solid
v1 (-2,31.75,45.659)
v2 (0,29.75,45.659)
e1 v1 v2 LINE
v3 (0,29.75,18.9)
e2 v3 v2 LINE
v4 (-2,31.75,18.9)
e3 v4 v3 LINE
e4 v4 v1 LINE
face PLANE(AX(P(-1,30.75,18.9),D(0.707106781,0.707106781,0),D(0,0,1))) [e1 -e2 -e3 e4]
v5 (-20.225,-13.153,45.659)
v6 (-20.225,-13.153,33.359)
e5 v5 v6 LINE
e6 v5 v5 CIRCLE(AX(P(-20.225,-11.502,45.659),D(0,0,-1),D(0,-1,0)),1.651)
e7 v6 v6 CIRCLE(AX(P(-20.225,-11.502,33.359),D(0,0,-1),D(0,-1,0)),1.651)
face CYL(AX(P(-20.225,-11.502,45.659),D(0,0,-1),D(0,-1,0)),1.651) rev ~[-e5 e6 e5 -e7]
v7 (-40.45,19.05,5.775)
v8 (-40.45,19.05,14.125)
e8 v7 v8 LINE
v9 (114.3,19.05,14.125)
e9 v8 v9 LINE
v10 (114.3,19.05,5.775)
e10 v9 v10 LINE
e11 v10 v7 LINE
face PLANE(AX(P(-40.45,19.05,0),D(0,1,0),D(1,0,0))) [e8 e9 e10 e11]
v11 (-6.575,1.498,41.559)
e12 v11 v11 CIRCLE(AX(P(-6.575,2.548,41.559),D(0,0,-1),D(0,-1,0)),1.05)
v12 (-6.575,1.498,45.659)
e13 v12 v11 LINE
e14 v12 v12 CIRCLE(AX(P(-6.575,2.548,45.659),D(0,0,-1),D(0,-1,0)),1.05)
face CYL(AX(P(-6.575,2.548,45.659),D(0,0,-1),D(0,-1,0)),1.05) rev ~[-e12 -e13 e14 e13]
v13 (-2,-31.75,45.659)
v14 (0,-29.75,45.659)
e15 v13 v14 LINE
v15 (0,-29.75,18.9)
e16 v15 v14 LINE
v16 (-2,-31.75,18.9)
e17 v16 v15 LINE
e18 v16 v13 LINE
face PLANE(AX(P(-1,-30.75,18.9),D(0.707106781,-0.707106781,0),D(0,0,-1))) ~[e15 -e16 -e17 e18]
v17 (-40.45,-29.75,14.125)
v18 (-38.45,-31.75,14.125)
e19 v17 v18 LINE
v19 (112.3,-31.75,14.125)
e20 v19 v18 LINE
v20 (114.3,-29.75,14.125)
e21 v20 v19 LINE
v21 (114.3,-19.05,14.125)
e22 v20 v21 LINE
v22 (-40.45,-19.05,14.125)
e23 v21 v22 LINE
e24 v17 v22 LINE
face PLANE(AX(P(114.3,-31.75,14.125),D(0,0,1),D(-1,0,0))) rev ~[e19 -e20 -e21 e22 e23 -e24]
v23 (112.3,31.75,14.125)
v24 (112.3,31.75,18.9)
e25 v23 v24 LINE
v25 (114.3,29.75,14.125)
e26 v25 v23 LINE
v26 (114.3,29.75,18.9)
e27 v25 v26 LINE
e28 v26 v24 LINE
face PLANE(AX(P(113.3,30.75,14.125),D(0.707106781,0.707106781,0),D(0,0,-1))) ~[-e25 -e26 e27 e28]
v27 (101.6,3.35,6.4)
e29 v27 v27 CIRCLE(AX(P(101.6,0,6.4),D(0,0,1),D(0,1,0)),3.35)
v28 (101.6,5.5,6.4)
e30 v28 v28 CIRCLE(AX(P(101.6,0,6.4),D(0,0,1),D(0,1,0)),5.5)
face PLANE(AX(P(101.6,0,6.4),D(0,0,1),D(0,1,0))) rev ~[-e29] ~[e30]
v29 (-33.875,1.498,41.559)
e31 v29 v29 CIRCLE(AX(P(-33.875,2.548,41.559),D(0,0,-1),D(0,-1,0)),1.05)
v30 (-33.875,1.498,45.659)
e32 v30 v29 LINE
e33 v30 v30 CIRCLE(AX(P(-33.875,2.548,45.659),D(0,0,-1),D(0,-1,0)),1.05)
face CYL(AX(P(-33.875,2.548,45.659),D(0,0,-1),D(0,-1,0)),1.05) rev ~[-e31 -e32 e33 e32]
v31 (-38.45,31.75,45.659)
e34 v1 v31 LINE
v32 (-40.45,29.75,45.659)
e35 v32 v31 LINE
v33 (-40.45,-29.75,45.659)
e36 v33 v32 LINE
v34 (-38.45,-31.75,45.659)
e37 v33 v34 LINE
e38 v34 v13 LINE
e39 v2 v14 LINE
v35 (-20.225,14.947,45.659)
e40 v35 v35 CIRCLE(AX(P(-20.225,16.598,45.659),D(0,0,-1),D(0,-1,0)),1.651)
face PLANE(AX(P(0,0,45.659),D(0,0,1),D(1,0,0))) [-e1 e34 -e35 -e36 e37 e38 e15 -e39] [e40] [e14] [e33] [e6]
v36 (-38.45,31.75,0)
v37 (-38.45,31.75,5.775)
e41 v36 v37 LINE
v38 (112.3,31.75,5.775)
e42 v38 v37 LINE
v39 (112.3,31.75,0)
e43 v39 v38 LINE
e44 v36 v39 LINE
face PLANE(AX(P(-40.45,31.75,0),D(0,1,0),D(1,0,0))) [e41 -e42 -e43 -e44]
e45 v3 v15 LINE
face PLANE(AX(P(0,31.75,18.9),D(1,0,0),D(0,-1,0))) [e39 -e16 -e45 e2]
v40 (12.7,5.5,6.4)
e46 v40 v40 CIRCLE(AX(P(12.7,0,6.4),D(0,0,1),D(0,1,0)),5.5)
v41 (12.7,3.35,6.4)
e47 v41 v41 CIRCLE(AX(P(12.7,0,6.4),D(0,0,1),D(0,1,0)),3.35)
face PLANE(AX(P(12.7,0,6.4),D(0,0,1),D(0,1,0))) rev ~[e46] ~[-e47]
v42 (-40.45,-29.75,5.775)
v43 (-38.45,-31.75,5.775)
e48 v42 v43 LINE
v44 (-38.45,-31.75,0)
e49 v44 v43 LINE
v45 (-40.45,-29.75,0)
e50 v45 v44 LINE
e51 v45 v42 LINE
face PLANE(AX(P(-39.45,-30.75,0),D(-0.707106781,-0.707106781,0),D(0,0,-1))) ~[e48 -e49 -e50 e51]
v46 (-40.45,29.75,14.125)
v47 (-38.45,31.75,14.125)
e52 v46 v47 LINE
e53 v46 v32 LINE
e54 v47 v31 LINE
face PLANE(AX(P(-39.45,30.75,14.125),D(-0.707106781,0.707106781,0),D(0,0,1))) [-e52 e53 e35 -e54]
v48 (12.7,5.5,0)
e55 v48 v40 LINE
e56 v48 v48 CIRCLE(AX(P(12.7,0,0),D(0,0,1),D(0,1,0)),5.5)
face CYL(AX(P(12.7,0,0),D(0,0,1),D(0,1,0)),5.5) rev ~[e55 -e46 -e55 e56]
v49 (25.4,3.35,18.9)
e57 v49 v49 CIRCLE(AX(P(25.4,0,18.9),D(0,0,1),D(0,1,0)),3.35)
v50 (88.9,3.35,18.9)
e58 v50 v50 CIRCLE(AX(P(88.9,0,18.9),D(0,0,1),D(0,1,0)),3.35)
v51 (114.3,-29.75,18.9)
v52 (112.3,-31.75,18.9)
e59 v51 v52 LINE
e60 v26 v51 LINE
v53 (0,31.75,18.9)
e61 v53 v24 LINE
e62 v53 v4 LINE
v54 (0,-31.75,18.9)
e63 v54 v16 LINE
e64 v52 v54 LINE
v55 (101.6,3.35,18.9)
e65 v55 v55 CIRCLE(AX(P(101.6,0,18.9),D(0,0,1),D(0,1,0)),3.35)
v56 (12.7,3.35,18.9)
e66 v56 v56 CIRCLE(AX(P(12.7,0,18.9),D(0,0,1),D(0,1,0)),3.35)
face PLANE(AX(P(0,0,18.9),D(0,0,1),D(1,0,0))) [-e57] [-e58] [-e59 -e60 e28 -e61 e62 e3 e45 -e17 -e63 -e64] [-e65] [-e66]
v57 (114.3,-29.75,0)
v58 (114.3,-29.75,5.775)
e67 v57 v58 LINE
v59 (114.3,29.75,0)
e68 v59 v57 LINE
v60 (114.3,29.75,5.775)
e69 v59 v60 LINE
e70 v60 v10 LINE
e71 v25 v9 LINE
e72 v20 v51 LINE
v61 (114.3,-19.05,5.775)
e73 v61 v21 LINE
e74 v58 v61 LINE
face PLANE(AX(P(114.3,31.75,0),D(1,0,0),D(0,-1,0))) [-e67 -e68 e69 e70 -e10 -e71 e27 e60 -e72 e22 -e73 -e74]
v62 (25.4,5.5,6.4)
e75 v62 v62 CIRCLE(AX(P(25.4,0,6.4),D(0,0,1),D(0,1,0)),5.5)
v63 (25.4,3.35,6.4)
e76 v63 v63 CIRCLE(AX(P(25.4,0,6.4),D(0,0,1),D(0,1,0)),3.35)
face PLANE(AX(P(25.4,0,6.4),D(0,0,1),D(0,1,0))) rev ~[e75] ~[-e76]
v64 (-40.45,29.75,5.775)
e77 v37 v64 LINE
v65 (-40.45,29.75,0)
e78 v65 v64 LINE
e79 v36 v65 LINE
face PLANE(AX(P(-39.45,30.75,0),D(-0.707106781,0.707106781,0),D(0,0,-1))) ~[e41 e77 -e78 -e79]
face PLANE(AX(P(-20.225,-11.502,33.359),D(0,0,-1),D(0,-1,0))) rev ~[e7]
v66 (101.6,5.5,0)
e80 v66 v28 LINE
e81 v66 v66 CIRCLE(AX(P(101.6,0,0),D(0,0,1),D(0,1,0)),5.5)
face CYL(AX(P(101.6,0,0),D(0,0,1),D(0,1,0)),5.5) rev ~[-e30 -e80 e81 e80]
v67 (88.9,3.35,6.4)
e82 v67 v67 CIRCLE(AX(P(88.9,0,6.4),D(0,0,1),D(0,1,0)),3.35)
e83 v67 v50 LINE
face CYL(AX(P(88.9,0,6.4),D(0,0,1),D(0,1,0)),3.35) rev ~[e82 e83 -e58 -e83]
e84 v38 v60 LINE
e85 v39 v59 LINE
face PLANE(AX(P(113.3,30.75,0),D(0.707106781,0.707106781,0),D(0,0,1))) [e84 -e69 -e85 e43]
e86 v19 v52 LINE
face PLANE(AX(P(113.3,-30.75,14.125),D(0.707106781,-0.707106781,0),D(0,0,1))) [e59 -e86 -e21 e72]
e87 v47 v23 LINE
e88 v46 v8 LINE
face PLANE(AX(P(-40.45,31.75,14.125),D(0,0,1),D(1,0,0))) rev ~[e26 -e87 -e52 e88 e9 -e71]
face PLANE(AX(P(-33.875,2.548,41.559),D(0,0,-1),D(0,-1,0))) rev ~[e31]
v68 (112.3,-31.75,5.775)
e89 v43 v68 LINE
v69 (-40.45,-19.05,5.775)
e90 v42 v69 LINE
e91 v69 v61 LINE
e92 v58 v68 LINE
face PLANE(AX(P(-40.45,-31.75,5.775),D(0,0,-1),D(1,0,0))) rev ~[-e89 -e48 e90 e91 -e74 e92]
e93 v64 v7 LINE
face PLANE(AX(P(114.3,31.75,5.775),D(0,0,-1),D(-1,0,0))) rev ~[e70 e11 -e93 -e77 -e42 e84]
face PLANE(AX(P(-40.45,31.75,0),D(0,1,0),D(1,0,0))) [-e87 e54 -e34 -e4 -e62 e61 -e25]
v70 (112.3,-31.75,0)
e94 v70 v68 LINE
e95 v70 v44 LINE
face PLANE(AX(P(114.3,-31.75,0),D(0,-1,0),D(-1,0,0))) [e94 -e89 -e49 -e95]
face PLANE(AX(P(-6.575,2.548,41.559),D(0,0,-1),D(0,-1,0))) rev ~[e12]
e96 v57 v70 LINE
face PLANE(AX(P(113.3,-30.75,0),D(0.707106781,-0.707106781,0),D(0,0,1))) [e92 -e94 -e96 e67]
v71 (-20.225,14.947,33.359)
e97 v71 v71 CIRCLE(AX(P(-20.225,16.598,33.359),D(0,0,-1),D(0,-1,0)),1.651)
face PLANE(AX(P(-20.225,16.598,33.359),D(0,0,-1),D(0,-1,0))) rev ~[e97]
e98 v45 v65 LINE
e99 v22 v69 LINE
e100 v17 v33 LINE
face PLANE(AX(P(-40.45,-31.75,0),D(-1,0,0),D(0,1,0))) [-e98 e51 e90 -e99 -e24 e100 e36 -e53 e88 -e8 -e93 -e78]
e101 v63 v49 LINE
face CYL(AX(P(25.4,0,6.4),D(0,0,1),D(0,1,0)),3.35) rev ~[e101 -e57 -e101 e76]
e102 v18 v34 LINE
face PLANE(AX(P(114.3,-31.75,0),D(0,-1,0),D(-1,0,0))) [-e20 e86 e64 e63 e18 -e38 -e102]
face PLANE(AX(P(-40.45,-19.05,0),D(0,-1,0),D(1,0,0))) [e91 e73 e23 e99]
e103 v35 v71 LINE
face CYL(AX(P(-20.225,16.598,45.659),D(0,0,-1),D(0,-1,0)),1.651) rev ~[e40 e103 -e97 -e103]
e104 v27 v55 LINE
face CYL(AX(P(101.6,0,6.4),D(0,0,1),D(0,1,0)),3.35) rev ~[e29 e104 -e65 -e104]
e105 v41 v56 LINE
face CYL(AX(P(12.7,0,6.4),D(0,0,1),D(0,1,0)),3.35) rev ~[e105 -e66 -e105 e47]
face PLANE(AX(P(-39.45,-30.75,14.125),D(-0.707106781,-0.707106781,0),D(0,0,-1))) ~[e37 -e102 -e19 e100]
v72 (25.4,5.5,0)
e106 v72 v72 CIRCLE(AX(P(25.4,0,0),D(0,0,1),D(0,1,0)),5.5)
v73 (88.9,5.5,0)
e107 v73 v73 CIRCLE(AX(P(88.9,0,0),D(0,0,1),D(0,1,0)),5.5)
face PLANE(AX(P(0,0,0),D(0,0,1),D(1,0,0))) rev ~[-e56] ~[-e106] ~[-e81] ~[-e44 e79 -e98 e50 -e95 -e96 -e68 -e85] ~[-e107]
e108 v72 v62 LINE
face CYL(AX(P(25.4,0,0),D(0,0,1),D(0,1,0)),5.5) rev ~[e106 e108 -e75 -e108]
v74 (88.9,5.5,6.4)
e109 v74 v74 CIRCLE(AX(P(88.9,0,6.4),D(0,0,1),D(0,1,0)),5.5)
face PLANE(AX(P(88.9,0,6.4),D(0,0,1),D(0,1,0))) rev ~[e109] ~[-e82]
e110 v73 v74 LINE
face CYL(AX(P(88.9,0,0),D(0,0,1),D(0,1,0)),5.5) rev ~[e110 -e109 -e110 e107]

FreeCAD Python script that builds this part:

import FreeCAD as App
import Part
import Sketcher

V = App.Vector
Q = App.Units.Quantity


def edges_at(feature, points):
    """Names of the edges that pass closest to the given points."""
    edges = feature.Shape.Edges
    near = lambda p: min(range(len(edges)), key=lambda i: edges[i].distToShape(Part.Vertex(*p))[0])
    return sorted({f"Edge{near(p) + 1}" for p in points})


def add_polygon(sketch, points):
    """Adds a closed chain of lines whose ends are joined by coincident constraints."""
    first, n = sketch.GeometryCount, len(points)
    for a, b in zip(points, points[1:] + points[:1]):
        sketch.addGeometry(Part.LineSegment(App.Vector(*a, 0), App.Vector(*b, 0)), False)
    for i in range(n):
        sketch.addConstraint(Sketcher.Constraint("Coincident", first + i, 2, first + (i + 1) % n, 1))

doc = App.newDocument("Part")
body = doc.addObject("PartDesign::Body", "Body")

sketch1 = body.newObject("Sketcher::SketchObject", "Sketch")
sketch1.AttachmentSupport = (doc.getObject("XY_Plane"), [""])
sketch1.MapMode = "FlatFace"
add_polygon(sketch1, [(114.3, 31.75), (-40.45, 31.75), (-40.45, -31.75), (114.3, -31.75)])
sketch1.addConstraint(Sketcher.Constraint("Horizontal", 0))
sketch1.addConstraint(Sketcher.Constraint("Vertical", 1))
sketch1.addConstraint(Sketcher.Constraint("Horizontal", 2))
sketch1.addConstraint(Sketcher.Constraint("Vertical", 3))
sketch1.addConstraint(Sketcher.Constraint("DistanceY", 1, 2, 1, 1, Q("63.5 mm")))
sketch1.addConstraint(Sketcher.Constraint("DistanceX", 0, 2, 0, 1, Q("154.75 mm")))
sketch1.addConstraint(Sketcher.Constraint("DistanceX", 0, 2, -1, 1, Q("40.45 mm")))
sketch1.addConstraint(Sketcher.Constraint("DistanceY", -1, 1, 0, 2, Q("31.75 mm")))
pad1 = body.newObject("PartDesign::Pad", "Pad")
pad1.Profile = sketch1
pad1.Length = 18.9

sketch2 = body.newObject("Sketcher::SketchObject", "Sketch001")
sketch2.AttachmentSupport = (doc.getObject("XY_Plane"), [""])
sketch2.MapMode = "FlatFace"
sketch2.AttachmentOffset = App.Placement(V(0, 0, 18.9), App.Rotation())
add_polygon(sketch2, [(0, -31.75), (0, 31.75), (-40.45, 31.75), (-40.45, -31.75)])
sketch2.addConstraint(Sketcher.Constraint("Vertical", 0))
sketch2.addConstraint(Sketcher.Constraint("Horizontal", 1))
sketch2.addConstraint(Sketcher.Constraint("Vertical", 2))
sketch2.addConstraint(Sketcher.Constraint("Horizontal", 3))
sketch2.addConstraint(Sketcher.Constraint("Symmetric", 0, 2, 3, 2, -1, 1))
sketch2.addConstraint(Sketcher.Constraint("DistanceX", 1, 2, 1, 1, Q("40.45 mm")))
sketch2.addConstraint(Sketcher.Constraint("DistanceY", 0, 1, 0, 2, Q("63.5 mm")))
pad2 = body.newObject("PartDesign::Pad", "Pad001")
pad2.Profile = sketch2
pad2.Length = 26.759

sketch3 = body.newObject("Sketcher::SketchObject", "Sketch002")
sketch3.AttachmentSupport = (doc.getObject("XY_Plane"), [""])
sketch3.MapMode = "FlatFace"
sketch3.addGeometry(Part.Circle(V(12.7, 0, 0), V(0, 0, 1), 3.35), False)
sketch3.addGeometry(Part.Circle(V(101.6, 0, 0), V(0, 0, 1), 3.35), False)
sketch3.addGeometry(Part.Circle(V(25.4, 0, 0), V(0, 0, 1), 3.35), False)
sketch3.addGeometry(Part.Circle(V(88.9, 0, 0), V(0, 0, 1), 3.35), False)
sketch3.addConstraint(Sketcher.Constraint("Equal", 0, 1))
sketch3.addConstraint(Sketcher.Constraint("Equal", 1, 2))
sketch3.addConstraint(Sketcher.Constraint("Equal", 2, 3))
sketch3.addConstraint(Sketcher.Constraint("PointOnObject", 0, 3, -1))
sketch3.addConstraint(Sketcher.Constraint("PointOnObject", 1, 3, -1))
sketch3.addConstraint(Sketcher.Constraint("PointOnObject", 2, 3, -1))
sketch3.addConstraint(Sketcher.Constraint("PointOnObject", 3, 3, -1))
sketch3.addConstraint(Sketcher.Constraint("Diameter", 0, Q("6.7 mm")))
sketch3.addConstraint(Sketcher.Constraint("DistanceX", -1, 1, 0, 3, Q("12.7 mm")))
sketch3.addConstraint(Sketcher.Constraint("DistanceX", -1, 1, 1, 3, Q("101.6 mm")))
sketch3.addConstraint(Sketcher.Constraint("DistanceX", -1, 1, 2, 3, Q("25.4 mm")))
sketch3.addConstraint(Sketcher.Constraint("DistanceX", -1, 1, 3, 3, Q("88.9 mm")))
doc.recompute()
hole = body.newObject("PartDesign::Hole", "Hole")
hole.Profile = sketch3
hole.ThreadType = "None"
hole.Diameter = 6.7
hole.DepthType = "ThroughAll"
hole.HoleCutType = "Counterbore"
hole.HoleCutDiameter = 11
hole.HoleCutDepth = 6.4
hole.Reversed = True

sketch4 = body.newObject("Sketcher::SketchObject", "Sketch003")
sketch4.AttachmentSupport = (doc.getObject("XZ_Plane"), [""])
sketch4.MapMode = "FlatFace"
sketch4.AttachmentOffset = App.Placement(V(0, 0, -31.75), App.Rotation())
add_polygon(sketch4, [(114.3, 14.125), (114.3, 5.775), (-40.45, 5.775), (-40.45, 14.125)])
sketch4.addConstraint(Sketcher.Constraint("Vertical", 0))
sketch4.addConstraint(Sketcher.Constraint("Horizontal", 1))
sketch4.addConstraint(Sketcher.Constraint("Vertical", 2))
sketch4.addConstraint(Sketcher.Constraint("Horizontal", 3))
sketch4.addConstraint(Sketcher.Constraint("DistanceX", 1, 2, 1, 1, Q("154.75 mm")))
sketch4.addConstraint(Sketcher.Constraint("DistanceY", 0, 2, 0, 1, Q("8.35 mm")))
sketch4.addConstraint(Sketcher.Constraint("DistanceX", -1, 1, 0, 2, Q("114.3 mm")))
sketch4.addConstraint(Sketcher.Constraint("DistanceY", -1, 1, 0, 2, Q("5.775 mm")))
pocket1 = body.newObject("PartDesign::Pocket", "Pocket")
pocket1.Profile = sketch4
pocket1.Length = 12.7
pocket1.Reversed = True

sketch5 = body.newObject("Sketcher::SketchObject", "Sketch004")
sketch5.AttachmentSupport = (doc.getObject("XZ_Plane"), [""])
sketch5.MapMode = "FlatFace"
sketch5.AttachmentOffset = App.Placement(V(0, 0, 31.75), App.Rotation())
add_polygon(sketch5, [(-40.45, 14.125), (-40.45, 5.775), (114.3, 5.775), (114.3, 14.125)])
sketch5.addConstraint(Sketcher.Constraint("Vertical", 0))
sketch5.addConstraint(Sketcher.Constraint("Horizontal", 1))
sketch5.addConstraint(Sketcher.Constraint("Vertical", 2))
sketch5.addConstraint(Sketcher.Constraint("Horizontal", 3))
sketch5.addConstraint(Sketcher.Constraint("DistanceX", 1, 1, 1, 2, Q("154.75 mm")))
sketch5.addConstraint(Sketcher.Constraint("DistanceY", 0, 2, 0, 1, Q("8.35 mm")))
sketch5.addConstraint(Sketcher.Constraint("DistanceX", -1, 1, 1, 2, Q("114.3 mm")))
sketch5.addConstraint(Sketcher.Constraint("DistanceY", -1, 1, 0, 2, Q("5.775 mm")))
pocket2 = body.newObject("PartDesign::Pocket", "Pocket001")
pocket2.Profile = sketch5
pocket2.Length = 12.7

sketch6 = body.newObject("Sketcher::SketchObject", "Sketch005")
sketch6.AttachmentSupport = (doc.getObject("XY_Plane"), [""])
sketch6.MapMode = "FlatFace"
sketch6.AttachmentOffset = App.Placement(V(0, 0, 45.659), App.Rotation())
sketch6.addGeometry(Part.Circle(V(-33.875, 2.548, 0), V(0, 0, 1), 1.05), False)
sketch6.addGeometry(Part.Circle(V(-6.575, 2.548, 0), V(0, 0, 1), 1.05), False)
sketch6.addConstraint(Sketcher.Constraint("Equal", 0, 1))
sketch6.addConstraint(Sketcher.Constraint("Horizontal", 0, 3, 1, 3))
sketch6.addConstraint(Sketcher.Constraint("Diameter", 0, Q("2.1 mm")))
sketch6.addConstraint(Sketcher.Constraint("DistanceX", 0, 3, 1, 3, Q("27.3 mm")))
sketch6.addConstraint(Sketcher.Constraint("DistanceX", 0, 3, -1, 1, Q("33.875 mm")))
sketch6.addConstraint(Sketcher.Constraint("DistanceY", -1, 1, 0, 3, Q("2.548 mm")))
doc.recompute()
hole2 = body.newObject("PartDesign::Hole", "Hole001")
hole2.Profile = sketch6
hole2.ThreadType = "None"
hole2.Diameter = 2.1
hole2.DepthType = "Dimension"
hole2.Depth = 4.1
hole2.DrillPoint = "Flat"

sketch7 = body.newObject("Sketcher::SketchObject", "Sketch006")
sketch7.AttachmentSupport = (doc.getObject("XY_Plane"), [""])
sketch7.MapMode = "FlatFace"
sketch7.AttachmentOffset = App.Placement(V(0, 0, 45.659), App.Rotation())
sketch7.addGeometry(Part.Circle(V(-20.225, -11.502, 0), V(0, 0, 1), 1.651), False)
sketch7.addGeometry(Part.Circle(V(-20.225, 16.598, 0), V(0, 0, 1), 1.651), False)
sketch7.addConstraint(Sketcher.Constraint("Equal", 0, 1))
sketch7.addConstraint(Sketcher.Constraint("Vertical", 0, 3, 1, 3))
sketch7.addConstraint(Sketcher.Constraint("Diameter", 0, Q("3.302 mm")))
sketch7.addConstraint(Sketcher.Constraint("DistanceY", 0, 3, 1, 3, Q("28.1 mm")))
sketch7.addConstraint(Sketcher.Constraint("DistanceX", 0, 3, -1, 1, Q("20.225 mm")))
sketch7.addConstraint(Sketcher.Constraint("DistanceY", 0, 3, -1, 1, Q("11.502 mm")))
doc.recompute()
hole3 = body.newObject("PartDesign::Hole", "Hole002")
hole3.Profile = sketch7
hole3.ThreadType = "None"
hole3.Diameter = 3.302
hole3.DepthType = "Dimension"
hole3.Depth = 12.3
hole3.DrillPoint = "Flat"
doc.recompute()

chamfer = body.newObject("PartDesign::Chamfer", "Chamfer")
chamfer.Base = (hole3, edges_at(hole3, [
    (0, -31.75, 32.279),
    (-40.45, -31.75, 29.892),
    (-40.45, -31.75, 2.888),
    (114.3, -31.75, 16.512),
    (114.3, -31.75, 2.888),
    (114.3, 31.75, 16.512),
    (114.3, 31.75, 2.888),
    (0, 31.75, 32.279),
    (-40.45, 31.75, 29.892),
    (-40.45, 31.75, 2.888),
]))
chamfer.Size = 2

doc.recompute()
